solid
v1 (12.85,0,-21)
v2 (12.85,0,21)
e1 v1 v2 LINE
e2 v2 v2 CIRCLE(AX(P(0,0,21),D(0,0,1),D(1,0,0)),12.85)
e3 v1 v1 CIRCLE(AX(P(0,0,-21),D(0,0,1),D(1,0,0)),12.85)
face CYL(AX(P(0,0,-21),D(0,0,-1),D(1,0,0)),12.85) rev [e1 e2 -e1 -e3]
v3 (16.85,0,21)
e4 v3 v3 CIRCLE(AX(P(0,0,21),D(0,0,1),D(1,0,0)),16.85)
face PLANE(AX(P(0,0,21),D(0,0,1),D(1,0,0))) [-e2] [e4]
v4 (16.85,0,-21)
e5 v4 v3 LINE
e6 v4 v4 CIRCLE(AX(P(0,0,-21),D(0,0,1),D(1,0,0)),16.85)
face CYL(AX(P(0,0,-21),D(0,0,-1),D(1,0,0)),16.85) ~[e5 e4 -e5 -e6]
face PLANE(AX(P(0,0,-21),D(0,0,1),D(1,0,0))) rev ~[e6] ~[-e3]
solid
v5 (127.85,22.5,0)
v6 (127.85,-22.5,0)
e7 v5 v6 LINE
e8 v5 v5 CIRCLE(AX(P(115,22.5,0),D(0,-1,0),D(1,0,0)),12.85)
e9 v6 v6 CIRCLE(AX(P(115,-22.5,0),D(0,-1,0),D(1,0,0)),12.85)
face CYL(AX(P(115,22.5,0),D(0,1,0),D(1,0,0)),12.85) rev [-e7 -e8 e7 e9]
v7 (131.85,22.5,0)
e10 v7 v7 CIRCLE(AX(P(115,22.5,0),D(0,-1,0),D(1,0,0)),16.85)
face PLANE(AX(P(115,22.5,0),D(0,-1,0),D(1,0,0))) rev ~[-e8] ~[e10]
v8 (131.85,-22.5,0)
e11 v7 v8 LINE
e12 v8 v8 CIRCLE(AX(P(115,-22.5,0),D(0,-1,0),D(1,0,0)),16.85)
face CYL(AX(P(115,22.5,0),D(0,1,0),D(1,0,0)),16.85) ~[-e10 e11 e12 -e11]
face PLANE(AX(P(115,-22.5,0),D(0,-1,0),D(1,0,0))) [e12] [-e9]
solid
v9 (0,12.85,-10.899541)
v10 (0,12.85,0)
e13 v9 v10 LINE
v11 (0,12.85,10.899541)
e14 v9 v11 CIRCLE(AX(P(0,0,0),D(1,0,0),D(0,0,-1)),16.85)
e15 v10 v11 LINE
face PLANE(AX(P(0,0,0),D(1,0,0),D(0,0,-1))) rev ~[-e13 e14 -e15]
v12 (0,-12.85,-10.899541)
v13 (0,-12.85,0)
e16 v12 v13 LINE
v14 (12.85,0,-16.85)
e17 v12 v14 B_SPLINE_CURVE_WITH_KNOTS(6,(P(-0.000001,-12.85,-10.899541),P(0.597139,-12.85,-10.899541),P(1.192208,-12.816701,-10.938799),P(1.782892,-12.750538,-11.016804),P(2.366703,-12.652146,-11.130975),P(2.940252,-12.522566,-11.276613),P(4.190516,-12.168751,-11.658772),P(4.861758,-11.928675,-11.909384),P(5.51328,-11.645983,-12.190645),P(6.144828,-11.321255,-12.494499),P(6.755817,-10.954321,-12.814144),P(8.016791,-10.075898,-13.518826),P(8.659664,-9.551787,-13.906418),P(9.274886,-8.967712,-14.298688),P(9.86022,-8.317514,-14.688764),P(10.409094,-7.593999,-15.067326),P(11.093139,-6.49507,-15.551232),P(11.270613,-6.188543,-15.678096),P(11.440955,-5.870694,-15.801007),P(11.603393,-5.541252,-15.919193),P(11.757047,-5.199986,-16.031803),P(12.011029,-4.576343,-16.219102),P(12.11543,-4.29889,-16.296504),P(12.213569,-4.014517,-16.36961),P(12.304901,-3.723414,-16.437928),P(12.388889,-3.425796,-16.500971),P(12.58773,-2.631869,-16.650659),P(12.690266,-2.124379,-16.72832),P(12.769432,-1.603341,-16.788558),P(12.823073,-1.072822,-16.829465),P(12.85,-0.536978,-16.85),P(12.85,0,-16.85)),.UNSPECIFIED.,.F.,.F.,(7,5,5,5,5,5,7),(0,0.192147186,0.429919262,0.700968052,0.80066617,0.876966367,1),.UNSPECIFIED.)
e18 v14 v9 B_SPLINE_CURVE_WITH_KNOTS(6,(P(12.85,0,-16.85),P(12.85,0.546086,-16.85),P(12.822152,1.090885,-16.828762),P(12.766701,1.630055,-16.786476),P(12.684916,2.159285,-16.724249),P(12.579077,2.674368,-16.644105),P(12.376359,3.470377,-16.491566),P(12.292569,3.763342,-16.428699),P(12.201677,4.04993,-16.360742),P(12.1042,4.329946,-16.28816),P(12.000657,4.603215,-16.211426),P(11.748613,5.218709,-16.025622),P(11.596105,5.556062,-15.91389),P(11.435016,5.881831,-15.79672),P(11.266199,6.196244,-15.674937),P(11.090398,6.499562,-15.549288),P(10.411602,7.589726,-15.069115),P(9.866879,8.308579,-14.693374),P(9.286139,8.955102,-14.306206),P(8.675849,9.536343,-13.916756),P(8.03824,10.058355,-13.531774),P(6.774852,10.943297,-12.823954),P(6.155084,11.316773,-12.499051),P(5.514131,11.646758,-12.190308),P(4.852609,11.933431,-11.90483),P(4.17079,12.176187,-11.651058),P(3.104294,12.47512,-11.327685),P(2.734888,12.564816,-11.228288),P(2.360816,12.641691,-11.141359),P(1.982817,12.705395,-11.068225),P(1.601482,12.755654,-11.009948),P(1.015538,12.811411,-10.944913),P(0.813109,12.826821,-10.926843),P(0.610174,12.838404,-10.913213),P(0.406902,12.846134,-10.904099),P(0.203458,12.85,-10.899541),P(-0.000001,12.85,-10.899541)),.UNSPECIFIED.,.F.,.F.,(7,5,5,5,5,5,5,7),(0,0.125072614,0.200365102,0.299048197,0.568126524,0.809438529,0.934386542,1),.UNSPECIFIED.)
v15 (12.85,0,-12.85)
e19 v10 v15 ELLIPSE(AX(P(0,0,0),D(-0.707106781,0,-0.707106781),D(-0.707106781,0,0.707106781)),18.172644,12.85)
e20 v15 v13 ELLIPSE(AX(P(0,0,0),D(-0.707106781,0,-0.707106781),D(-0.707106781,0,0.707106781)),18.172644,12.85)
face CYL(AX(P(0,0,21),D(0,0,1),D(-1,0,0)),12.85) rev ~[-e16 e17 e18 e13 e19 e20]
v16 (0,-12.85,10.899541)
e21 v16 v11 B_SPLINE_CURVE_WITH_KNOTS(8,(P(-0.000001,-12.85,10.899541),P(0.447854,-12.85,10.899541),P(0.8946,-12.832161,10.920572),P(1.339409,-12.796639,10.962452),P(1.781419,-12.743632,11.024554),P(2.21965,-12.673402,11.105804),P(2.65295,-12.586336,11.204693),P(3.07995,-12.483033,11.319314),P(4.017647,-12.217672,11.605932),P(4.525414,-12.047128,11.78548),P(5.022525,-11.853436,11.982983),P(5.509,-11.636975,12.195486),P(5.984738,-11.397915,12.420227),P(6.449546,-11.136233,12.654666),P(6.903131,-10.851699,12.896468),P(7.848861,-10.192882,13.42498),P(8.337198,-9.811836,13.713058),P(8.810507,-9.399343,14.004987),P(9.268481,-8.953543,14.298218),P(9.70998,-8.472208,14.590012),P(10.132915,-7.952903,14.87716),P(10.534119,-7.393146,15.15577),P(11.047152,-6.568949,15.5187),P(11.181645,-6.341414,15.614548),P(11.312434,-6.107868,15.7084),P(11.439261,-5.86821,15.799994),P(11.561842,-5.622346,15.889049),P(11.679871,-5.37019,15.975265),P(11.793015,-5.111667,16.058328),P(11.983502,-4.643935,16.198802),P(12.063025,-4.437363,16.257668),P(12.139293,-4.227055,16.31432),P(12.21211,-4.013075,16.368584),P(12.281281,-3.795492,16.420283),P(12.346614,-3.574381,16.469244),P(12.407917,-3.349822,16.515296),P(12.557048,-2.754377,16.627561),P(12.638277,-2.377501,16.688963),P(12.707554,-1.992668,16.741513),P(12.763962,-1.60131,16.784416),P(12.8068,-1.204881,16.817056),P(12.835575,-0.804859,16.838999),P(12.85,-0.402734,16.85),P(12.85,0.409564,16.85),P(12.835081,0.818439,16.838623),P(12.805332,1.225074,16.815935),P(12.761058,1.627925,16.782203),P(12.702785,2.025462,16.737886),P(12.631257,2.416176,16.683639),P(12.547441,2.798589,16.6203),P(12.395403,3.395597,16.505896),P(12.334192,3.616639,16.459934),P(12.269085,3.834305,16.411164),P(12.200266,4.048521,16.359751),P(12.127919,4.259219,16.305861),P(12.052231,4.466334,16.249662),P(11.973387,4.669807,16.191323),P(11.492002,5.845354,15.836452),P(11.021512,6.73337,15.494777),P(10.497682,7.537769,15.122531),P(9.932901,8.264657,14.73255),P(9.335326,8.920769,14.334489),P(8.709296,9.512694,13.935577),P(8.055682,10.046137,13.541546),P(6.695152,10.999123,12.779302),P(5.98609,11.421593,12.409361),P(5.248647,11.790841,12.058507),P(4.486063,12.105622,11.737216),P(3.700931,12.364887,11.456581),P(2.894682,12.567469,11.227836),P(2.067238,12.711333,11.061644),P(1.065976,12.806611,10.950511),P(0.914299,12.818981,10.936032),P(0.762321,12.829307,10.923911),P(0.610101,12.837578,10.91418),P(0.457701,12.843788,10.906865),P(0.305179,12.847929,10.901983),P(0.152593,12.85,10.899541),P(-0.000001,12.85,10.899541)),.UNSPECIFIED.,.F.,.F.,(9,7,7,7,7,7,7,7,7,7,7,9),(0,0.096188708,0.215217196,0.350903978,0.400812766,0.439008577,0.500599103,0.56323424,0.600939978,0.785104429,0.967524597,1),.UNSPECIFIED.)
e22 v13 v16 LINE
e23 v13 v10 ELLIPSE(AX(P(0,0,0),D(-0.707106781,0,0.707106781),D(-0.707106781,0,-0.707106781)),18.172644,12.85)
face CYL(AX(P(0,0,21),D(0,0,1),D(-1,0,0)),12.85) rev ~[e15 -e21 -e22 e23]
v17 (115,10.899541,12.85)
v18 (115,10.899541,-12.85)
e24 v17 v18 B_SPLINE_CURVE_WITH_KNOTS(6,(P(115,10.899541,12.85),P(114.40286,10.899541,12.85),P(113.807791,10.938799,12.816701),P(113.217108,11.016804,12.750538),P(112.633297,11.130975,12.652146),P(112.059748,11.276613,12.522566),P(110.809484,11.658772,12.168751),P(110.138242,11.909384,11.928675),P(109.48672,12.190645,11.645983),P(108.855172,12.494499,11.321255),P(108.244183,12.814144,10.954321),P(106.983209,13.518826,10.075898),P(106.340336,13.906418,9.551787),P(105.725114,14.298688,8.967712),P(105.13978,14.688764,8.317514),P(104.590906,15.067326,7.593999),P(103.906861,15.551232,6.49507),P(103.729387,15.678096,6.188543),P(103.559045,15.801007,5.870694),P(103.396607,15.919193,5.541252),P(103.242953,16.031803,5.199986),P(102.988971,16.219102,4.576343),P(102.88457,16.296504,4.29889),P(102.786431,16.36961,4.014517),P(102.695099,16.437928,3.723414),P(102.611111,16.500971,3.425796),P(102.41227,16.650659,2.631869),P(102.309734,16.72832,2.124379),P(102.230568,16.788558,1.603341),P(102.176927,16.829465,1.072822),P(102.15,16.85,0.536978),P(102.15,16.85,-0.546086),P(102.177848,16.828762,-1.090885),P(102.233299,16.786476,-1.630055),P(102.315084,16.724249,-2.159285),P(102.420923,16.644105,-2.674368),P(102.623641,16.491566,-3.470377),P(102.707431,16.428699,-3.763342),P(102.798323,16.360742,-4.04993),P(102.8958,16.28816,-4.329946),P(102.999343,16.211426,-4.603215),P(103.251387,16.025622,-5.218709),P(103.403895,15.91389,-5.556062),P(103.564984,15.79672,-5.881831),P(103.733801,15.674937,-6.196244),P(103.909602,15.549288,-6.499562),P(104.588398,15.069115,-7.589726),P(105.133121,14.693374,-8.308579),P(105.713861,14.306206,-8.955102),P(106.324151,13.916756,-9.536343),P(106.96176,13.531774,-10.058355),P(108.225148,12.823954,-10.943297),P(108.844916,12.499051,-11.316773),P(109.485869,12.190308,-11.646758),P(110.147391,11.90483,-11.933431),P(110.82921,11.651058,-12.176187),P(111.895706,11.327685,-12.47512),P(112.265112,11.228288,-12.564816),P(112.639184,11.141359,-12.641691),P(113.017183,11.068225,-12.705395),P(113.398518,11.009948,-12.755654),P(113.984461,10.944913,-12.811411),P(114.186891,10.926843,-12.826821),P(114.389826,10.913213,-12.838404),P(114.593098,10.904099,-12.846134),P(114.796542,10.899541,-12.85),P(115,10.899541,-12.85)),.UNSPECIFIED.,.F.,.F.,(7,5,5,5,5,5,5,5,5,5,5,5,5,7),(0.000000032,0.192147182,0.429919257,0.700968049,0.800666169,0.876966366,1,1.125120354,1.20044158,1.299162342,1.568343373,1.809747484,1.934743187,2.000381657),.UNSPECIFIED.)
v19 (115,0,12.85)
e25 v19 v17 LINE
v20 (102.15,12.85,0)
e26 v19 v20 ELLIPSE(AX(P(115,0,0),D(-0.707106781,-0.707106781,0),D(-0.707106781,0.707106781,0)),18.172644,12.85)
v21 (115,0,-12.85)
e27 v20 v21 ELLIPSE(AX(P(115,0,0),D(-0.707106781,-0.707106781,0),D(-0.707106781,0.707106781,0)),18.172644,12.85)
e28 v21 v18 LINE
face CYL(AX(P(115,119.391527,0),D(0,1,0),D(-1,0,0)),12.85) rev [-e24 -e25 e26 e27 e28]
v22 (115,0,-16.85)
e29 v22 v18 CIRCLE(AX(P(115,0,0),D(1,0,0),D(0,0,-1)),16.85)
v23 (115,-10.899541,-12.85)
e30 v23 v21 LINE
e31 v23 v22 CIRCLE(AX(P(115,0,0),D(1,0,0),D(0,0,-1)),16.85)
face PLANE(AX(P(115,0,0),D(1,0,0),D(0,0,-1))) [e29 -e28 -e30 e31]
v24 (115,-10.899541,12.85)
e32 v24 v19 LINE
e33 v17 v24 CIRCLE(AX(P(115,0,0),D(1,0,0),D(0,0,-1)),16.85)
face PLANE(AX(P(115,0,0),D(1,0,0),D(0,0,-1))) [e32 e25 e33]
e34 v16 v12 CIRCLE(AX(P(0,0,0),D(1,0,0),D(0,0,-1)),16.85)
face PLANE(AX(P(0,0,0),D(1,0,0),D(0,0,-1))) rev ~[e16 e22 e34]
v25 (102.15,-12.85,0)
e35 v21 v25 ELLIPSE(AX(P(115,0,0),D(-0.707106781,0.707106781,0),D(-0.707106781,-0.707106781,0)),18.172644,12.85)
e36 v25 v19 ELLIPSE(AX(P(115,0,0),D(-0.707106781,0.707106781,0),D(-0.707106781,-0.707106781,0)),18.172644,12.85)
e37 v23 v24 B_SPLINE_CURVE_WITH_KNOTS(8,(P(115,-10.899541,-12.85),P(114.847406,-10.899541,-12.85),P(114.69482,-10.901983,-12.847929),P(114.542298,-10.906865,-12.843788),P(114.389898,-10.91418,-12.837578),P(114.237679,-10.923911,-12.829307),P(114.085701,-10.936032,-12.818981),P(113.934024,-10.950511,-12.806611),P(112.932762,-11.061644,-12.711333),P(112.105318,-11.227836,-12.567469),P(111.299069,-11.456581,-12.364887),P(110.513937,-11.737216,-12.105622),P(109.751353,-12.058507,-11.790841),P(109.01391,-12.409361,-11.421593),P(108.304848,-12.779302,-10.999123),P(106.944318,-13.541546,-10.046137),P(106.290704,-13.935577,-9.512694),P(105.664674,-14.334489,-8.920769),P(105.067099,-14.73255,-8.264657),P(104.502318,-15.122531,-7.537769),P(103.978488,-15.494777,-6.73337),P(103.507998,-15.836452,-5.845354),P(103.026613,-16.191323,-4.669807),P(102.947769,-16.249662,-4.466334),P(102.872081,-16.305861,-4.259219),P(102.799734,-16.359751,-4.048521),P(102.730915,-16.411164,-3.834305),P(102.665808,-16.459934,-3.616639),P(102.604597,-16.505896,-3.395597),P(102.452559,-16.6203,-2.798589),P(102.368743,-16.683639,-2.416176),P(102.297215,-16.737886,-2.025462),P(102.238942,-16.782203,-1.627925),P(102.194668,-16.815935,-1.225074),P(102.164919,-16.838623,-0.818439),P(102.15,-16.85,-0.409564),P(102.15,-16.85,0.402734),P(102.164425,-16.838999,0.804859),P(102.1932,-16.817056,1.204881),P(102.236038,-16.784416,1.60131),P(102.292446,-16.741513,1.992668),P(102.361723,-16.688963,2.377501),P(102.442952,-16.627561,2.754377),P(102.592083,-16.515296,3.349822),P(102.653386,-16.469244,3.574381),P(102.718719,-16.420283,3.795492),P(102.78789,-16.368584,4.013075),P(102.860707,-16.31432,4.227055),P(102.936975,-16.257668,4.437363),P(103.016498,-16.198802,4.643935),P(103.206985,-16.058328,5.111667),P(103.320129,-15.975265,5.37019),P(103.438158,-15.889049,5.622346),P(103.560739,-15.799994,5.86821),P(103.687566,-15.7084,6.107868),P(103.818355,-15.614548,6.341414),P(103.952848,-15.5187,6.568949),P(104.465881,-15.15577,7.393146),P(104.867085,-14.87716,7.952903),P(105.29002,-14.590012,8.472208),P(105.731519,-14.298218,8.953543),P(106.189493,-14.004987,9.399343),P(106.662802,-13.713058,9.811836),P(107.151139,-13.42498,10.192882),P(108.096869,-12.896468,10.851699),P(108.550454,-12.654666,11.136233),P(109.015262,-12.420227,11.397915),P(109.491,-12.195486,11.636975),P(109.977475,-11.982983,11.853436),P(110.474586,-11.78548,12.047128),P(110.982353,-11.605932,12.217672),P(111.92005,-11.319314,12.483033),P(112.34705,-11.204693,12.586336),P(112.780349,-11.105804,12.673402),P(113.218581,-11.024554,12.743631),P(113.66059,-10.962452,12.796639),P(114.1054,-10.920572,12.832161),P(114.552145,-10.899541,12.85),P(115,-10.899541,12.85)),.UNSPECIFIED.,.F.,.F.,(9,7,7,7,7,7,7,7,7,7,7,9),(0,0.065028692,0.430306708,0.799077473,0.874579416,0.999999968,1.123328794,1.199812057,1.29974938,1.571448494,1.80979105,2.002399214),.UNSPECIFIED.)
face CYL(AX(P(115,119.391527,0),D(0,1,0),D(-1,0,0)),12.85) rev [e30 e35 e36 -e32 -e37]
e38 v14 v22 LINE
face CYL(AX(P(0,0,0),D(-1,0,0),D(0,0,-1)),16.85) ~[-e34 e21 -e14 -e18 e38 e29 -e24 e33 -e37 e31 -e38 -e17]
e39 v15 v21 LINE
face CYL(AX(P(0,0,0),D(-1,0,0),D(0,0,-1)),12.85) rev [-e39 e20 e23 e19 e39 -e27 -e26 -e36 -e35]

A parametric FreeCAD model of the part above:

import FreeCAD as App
import Part
import Sketcher
from FreeCAD import Vector
Q = App.Units.Quantity

doc = App.newDocument("Part")
body = doc.addObject("PartDesign::Body", "Body")

sketch1 = body.newObject("Sketcher::SketchObject", "Sketch")
sketch1.AttachmentSupport = (doc.getObject("XY_Plane"), [""])
sketch1.MapMode = "FlatFace"
sketch1.AttachmentOffset = App.Placement(Vector(0, 0, -21), App.Rotation())
sketch1.addGeometry([
    Part.Circle(Vector(0, 0, 0), Vector(0, 0, 1), 16.85),
    Part.Circle(Vector(0, 0, 0), Vector(0, 0, 1), 12.85),
], False)
sketch1.addConstraint([
    Sketcher.Constraint("Coincident", 0, 3, -1, 1),
    Sketcher.Constraint("Coincident", 1, 3, -1, 1),
    Sketcher.Constraint("Diameter", 0, Q("33.7 mm")),
    Sketcher.Constraint("Diameter", 1, Q("25.7 mm")),
])
pad1 = body.newObject("PartDesign::Pad", "Pad")
pad1.Profile = sketch1
pad1.Length = 42
body2 = doc.addObject("PartDesign::Body", "Body001")

sketch2 = body2.newObject("Sketcher::SketchObject", "Sketch001")
sketch2.AttachmentSupport = (doc.getObject("YZ_Plane001"), [""])
sketch2.MapMode = "FlatFace"
sketch2.addGeometry([
    Part.Circle(Vector(0, 0, 0), Vector(0, 0, 1), 16.85),
    Part.Circle(Vector(0, 0, 0), Vector(0, 0, 1), 12.85),
], False)
sketch2.addConstraint([
    Sketcher.Constraint("Coincident", 0, 3, -1, 1),
    Sketcher.Constraint("Coincident", 1, 3, -1, 1),
    Sketcher.Constraint("Diameter", 0, Q("33.7 mm")),
    Sketcher.Constraint("Diameter", 1, Q("25.7 mm")),
])
pad2 = body2.newObject("PartDesign::Pad", "Pad001")
pad2.Profile = sketch2
pad2.Length = 115

sketch3 = body2.newObject("Sketcher::SketchObject", "Sketch002")
sketch3.AttachmentSupport = (doc.getObject("XY_Plane001"), [""])
sketch3.MapMode = "FlatFace"
sketch3.AttachmentOffset = App.Placement(Vector(0, 0, 21), App.Rotation())
sketch3.addGeometry(Part.Circle(Vector(0, 0, 0), Vector(0, 0, 1), 12.85), False)
sketch3.addConstraint([
    Sketcher.Constraint("Coincident", 0, 3, -1, 1),
    Sketcher.Constraint("Diameter", 0, Q("25.7 mm")),
])
pocket1 = body2.newObject("PartDesign::Pocket", "Pocket")
pocket1.Profile = sketch3
pocket1.Type = "ThroughAll"

sketch4 = body2.newObject("Sketcher::SketchObject", "Sketch003")
sketch4.AttachmentSupport = (doc.getObject("XZ_Plane001"), [""])
sketch4.MapMode = "FlatFace"
sketch4.AttachmentOffset = App.Placement(Vector(0, 0, 22.5), App.Rotation())
sketch4.addGeometry(Part.Circle(Vector(115, 0, 0), Vector(0, 0, 1), 12.85), False)
sketch4.addConstraint([
    Sketcher.Constraint("PointOnObject", 0, 3, -1),
    Sketcher.Constraint("Diameter", 0, Q("25.7 mm")),
    Sketcher.Constraint("DistanceX", -1, 1, 0, 3, Q("115 mm")),
])
pocket2 = body2.newObject("PartDesign::Pocket", "Pocket001")
pocket2.Profile = sketch4
pocket2.Type = "ThroughAll"
pocket2.Midplane = True
body3 = doc.addObject("PartDesign::Body", "Body002")

sketch5 = body3.newObject("Sketcher::SketchObject", "Sketch004")
sketch5.AttachmentSupport = (doc.getObject("XZ_Plane002"), [""])
sketch5.MapMode = "FlatFace"
sketch5.AttachmentOffset = App.Placement(Vector(0, 0, -22.5), App.Rotation())
sketch5.addGeometry([
    Part.Circle(Vector(115, 0, 0), Vector(0, 0, 1), 16.85),
    Part.Circle(Vector(115, 0, 0), Vector(0, 0, 1), 12.85),
], False)
sketch5.addConstraint([
    Sketcher.Constraint("Coincident", 1, 3, 0, 3),
    Sketcher.Constraint("PointOnObject", 0, 3, -1),
    Sketcher.Constraint("Diameter", 0, Q("33.7 mm")),
    Sketcher.Constraint("Diameter", 1, Q("25.7 mm")),
    Sketcher.Constraint("DistanceX", -1, 1, 0, 3, Q("115 mm")),
])
pad3 = body3.newObject("PartDesign::Pad", "Pad002")
pad3.Profile = sketch5
pad3.Length = 45

doc.recompute()
